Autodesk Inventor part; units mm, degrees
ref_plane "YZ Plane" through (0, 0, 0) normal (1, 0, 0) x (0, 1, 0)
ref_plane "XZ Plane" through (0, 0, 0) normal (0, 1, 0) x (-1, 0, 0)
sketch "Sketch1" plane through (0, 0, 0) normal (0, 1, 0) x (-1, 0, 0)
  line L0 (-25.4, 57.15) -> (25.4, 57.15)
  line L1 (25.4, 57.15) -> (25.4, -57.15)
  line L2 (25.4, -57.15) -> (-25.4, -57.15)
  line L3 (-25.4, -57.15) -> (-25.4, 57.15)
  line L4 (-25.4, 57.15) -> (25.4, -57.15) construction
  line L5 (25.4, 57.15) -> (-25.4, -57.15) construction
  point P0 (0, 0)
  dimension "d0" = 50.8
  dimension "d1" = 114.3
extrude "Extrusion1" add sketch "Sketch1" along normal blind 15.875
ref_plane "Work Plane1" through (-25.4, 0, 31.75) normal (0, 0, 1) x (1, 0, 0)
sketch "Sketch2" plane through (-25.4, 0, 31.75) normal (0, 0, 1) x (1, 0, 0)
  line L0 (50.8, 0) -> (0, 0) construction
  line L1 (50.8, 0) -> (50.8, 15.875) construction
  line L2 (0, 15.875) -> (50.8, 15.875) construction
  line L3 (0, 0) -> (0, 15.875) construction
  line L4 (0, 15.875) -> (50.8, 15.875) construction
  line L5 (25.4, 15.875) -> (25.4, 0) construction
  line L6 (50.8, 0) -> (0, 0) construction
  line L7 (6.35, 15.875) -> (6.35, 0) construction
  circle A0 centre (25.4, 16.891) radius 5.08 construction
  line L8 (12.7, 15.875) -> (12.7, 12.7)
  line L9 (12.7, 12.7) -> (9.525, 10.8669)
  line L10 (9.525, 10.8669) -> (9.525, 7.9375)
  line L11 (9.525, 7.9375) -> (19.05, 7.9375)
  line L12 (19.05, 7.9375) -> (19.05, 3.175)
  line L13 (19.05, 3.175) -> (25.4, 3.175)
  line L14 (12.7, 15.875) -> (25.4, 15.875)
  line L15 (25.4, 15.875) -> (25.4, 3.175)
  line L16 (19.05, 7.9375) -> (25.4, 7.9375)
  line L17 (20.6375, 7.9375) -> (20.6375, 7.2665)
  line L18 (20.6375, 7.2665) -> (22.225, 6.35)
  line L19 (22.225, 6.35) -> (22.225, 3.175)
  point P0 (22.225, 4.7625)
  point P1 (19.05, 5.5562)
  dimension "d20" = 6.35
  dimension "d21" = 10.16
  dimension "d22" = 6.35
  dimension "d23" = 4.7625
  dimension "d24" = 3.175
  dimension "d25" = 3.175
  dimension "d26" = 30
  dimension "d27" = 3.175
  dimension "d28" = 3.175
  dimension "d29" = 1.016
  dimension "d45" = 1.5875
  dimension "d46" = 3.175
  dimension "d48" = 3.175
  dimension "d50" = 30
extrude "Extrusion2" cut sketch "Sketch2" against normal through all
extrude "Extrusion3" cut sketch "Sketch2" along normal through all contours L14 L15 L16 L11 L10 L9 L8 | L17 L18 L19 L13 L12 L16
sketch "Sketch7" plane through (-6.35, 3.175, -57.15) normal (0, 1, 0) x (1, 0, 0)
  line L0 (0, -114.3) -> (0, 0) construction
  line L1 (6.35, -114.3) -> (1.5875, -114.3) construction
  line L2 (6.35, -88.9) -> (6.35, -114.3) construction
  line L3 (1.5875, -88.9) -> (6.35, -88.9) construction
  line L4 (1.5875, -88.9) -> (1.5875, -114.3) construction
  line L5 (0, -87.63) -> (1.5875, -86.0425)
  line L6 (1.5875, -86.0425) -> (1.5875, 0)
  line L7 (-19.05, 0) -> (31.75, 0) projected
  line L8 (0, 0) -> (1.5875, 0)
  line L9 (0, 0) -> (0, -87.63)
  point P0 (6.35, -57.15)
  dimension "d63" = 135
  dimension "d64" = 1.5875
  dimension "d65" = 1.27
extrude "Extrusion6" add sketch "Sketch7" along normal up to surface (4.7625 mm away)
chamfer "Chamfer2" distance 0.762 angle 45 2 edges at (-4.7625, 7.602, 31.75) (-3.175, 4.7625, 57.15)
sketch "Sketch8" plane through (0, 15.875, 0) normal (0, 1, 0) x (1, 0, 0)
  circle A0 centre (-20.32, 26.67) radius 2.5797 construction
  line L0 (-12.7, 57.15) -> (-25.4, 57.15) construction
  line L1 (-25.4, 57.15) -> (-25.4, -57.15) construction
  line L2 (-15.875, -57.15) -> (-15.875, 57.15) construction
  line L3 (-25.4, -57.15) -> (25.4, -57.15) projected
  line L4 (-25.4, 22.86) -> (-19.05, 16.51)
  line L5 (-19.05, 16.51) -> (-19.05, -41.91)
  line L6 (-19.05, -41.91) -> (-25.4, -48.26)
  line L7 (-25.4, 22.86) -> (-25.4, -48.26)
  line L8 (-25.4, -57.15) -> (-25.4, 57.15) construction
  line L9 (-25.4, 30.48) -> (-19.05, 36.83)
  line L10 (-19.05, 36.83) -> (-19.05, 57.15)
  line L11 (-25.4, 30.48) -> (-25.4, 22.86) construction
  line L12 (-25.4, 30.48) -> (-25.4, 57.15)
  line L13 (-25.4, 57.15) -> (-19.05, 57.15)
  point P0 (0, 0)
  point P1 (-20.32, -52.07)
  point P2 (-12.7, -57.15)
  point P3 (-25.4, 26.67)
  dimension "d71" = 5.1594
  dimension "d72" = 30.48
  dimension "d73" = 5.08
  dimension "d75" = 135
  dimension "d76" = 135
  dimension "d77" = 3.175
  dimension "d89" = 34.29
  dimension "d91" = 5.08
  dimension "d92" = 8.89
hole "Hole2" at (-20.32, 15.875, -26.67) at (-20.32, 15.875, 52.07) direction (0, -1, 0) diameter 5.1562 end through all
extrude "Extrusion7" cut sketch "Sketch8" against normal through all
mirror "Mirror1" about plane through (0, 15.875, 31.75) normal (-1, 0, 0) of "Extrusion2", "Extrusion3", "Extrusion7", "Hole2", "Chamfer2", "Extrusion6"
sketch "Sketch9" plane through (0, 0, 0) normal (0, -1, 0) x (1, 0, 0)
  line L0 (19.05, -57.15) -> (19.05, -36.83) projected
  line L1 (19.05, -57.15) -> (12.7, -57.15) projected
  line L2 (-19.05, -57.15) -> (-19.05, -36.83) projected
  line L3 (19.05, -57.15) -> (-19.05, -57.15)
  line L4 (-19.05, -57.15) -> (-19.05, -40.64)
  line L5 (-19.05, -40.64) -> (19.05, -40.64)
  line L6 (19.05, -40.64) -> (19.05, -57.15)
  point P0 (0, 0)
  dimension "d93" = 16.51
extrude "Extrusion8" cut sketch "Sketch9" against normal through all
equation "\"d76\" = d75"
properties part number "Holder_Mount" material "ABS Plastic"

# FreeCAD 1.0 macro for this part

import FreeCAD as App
import Part
import Sketcher
Q = App.Units.Quantity


def edges_at(feature, points):
    """Names of the edges that pass closest to the given points."""
    edges = feature.Shape.Edges
    near = lambda p: min(range(len(edges)), key=lambda i: edges[i].distToShape(Part.Vertex(*p))[0])
    return sorted({f"Edge{near(p) + 1}" for p in points})

doc = App.newDocument("Part")
body = doc.addObject("PartDesign::Body", "Body")

# Sketch on XZ plane
sketch1 = body.newObject("Sketcher::SketchObject", "Sketch")
sketch1.AttachmentSupport = (doc.getObject("XZ_Plane"), [""])
sketch1.MapMode = "FlatFace"
sketch1.addGeometry([
    Part.LineSegment(App.Vector(-25.4, 57.15, 0), App.Vector(25.4, 57.15, 0)),
    Part.LineSegment(App.Vector(25.4, 57.15, 0), App.Vector(25.4, -57.15, 0)),
    Part.LineSegment(App.Vector(25.4, -57.15, 0), App.Vector(-25.4, -57.15, 0)),
    Part.LineSegment(App.Vector(-25.4, -57.15, 0), App.Vector(-25.4, 57.15, 0)),
], False)
sketch1.addConstraint([
    Sketcher.Constraint("Coincident", 0, 2, 1, 1),
    Sketcher.Constraint("Coincident", 1, 2, 2, 1),
    Sketcher.Constraint("Coincident", 2, 2, 3, 1),
    Sketcher.Constraint("Coincident", 3, 2, 0, 1),
    Sketcher.Constraint("Horizontal", 0),
    Sketcher.Constraint("Vertical", 1),
    Sketcher.Constraint("Horizontal", 2),
    Sketcher.Constraint("Vertical", 3),
    Sketcher.Constraint("Symmetric", 0, 2, 2, 2, -1, 1),
    Sketcher.Constraint("DistanceX", 0, 1, 0, 2, Q("2 in")),
    Sketcher.Constraint("DistanceY", 1, 2, 1, 1, Q("4.5 in")),
])
pad1 = body.newObject("PartDesign::Pad", "Pad")
pad1.Profile = sketch1
pad1.Length = Q("0.625 in")
pad1.Reversed = True

# Sketch on XY plane
sketch2 = body.newObject("Sketcher::SketchObject", "Sketch001")
sketch2.AttachmentSupport = (doc.getObject("XY_Plane"), [""])
sketch2.MapMode = "FlatFace"
sketch2.AttachmentOffset = App.Placement(App.Vector(0, 0, 1.25 * 25.4), App.Rotation())
sketch2.addGeometry([
    Part.LineSegment(App.Vector(0, 15.875, 0), App.Vector(-12.7, 15.875, 0)),  # 0
    Part.LineSegment(App.Vector(-12.7, 15.875, 0), App.Vector(-12.7, 12.7, 0)),  # 1
    Part.LineSegment(App.Vector(-12.7, 12.7, 0), App.Vector(-15.875, 10.8669, 0)),  # 2
    Part.LineSegment(App.Vector(-15.875, 10.8669, 0), App.Vector(-15.875, 7.9375, 0)),  # 3
    Part.LineSegment(App.Vector(-15.875, 7.9375, 0), App.Vector(-6.35, 7.9375, 0)),  # 4
    Part.LineSegment(App.Vector(-6.35, 7.9375, 0), App.Vector(-6.35, 3.175, 0)),  # 5
    Part.LineSegment(App.Vector(-6.35, 3.175, 0), App.Vector(0, 3.175, 0)),  # 6
    Part.LineSegment(App.Vector(0, 3.175, 0), App.Vector(0, 15.875, 0)),  # 7
], False)
sketch2.addConstraint([
    Sketcher.Constraint("Coincident", 0, 2, 1, 1),
    Sketcher.Constraint("Coincident", 1, 2, 2, 1),
    Sketcher.Constraint("Coincident", 2, 2, 3, 1),
    Sketcher.Constraint("Coincident", 3, 2, 4, 1),
    Sketcher.Constraint("Coincident", 4, 2, 5, 1),
    Sketcher.Constraint("Coincident", 5, 2, 6, 1),
    Sketcher.Constraint("Coincident", 6, 2, 7, 1),
    Sketcher.Constraint("Coincident", 7, 2, 0, 1),
    Sketcher.Constraint("Horizontal", 0),
    Sketcher.Constraint("Vertical", 1),
    Sketcher.Constraint("Vertical", 3),
    Sketcher.Constraint("Horizontal", 4),
    Sketcher.Constraint("Vertical", 5),
    Sketcher.Constraint("Horizontal", 6),
    Sketcher.Constraint("Vertical", 7),
    Sketcher.Constraint("PointOnObject", 6, 2, -2),
    Sketcher.Constraint("Equal", 0, 7),
    Sketcher.Constraint("DistanceX", 6, 1, 6, 2, Q("0.25 in")),
    Sketcher.Constraint("DistanceY", 1, 2, 1, 1, Q("0.125 in")),
    Sketcher.Constraint("DistanceY", 5, 2, 5, 1, Q("0.1875 in")),
    Sketcher.Constraint("DistanceX", 1, 2, 4, 2, Q("0.25 in")),
    Sketcher.Constraint("DistanceY", -1, 1, 5, 2, Q("0.125 in")),
    Sketcher.Constraint("Angle", 2, Q("-149.9998 deg")),
    Sketcher.Constraint("DistanceX", 2, 2, 1, 2, Q("0.125 in")),
])
pocket1 = body.newObject("PartDesign::Pocket", "Pocket")
pocket1.Profile = sketch2
pocket1.Type = "ThroughAll"

# Sketch on XY plane
sketch3 = body.newObject("Sketcher::SketchObject", "Sketch002")
sketch3.AttachmentSupport = (doc.getObject("XY_Plane"), [""])
sketch3.MapMode = "FlatFace"
sketch3.AttachmentOffset = App.Placement(App.Vector(0, 0, 1.25 * 25.4), App.Rotation())
sketch3.addGeometry([
    Part.LineSegment(App.Vector(0, 15.875, 0), App.Vector(-12.7, 15.875, 0)),  # 0
    Part.LineSegment(App.Vector(-12.7, 15.875, 0), App.Vector(-12.7, 12.7, 0)),  # 1
    Part.LineSegment(App.Vector(-12.7, 12.7, 0), App.Vector(-15.875, 10.8669, 0)),  # 2
    Part.LineSegment(App.Vector(-15.875, 10.8669, 0), App.Vector(-15.875, 7.9375, 0)),  # 3
    Part.LineSegment(App.Vector(-15.875, 7.9375, 0), App.Vector(-6.35, 7.9375, 0)),  # 4
    Part.LineSegment(App.Vector(-6.35, 7.9375, 0), App.Vector(-6.35, 3.175, 0)),  # 5
    Part.LineSegment(App.Vector(-6.35, 3.175, 0), App.Vector(-3.175, 3.175, 0)),  # 6
    Part.LineSegment(App.Vector(-3.175, 3.175, 0), App.Vector(-3.175, 6.35, 0)),  # 7
    Part.LineSegment(App.Vector(-3.175, 6.35, 0), App.Vector(-4.7625, 7.2665, 0)),  # 8
    Part.LineSegment(App.Vector(-4.7625, 7.2665, 0), App.Vector(-4.7625, 7.9375, 0)),  # 9
    Part.LineSegment(App.Vector(-4.7625, 7.9375, 0), App.Vector(0, 7.9375, 0)),  # 10
    Part.LineSegment(App.Vector(0, 7.9375, 0), App.Vector(0, 15.875, 0)),  # 11
], False)
sketch3.addConstraint([
    Sketcher.Constraint("Coincident", 0, 2, 1, 1),
    Sketcher.Constraint("Coincident", 1, 2, 2, 1),
    Sketcher.Constraint("Coincident", 2, 2, 3, 1),
    Sketcher.Constraint("Coincident", 3, 2, 4, 1),
    Sketcher.Constraint("Coincident", 4, 2, 5, 1),
    Sketcher.Constraint("Coincident", 5, 2, 6, 1),
    Sketcher.Constraint("Coincident", 6, 2, 7, 1),
    Sketcher.Constraint("Coincident", 7, 2, 8, 1),
    Sketcher.Constraint("Coincident", 8, 2, 9, 1),
    Sketcher.Constraint("Coincident", 9, 2, 10, 1),
    Sketcher.Constraint("Coincident", 10, 2, 11, 1),
    Sketcher.Constraint("Coincident", 11, 2, 0, 1),
    Sketcher.Constraint("Horizontal", 0),
    Sketcher.Constraint("Vertical", 1),
    Sketcher.Constraint("Vertical", 3),
    Sketcher.Constraint("Horizontal", 4),
    Sketcher.Constraint("Vertical", 5),
    Sketcher.Constraint("Horizontal", 6),
    Sketcher.Constraint("Vertical", 7),
    Sketcher.Constraint("Vertical", 9),
    Sketcher.Constraint("Horizontal", 10),
    Sketcher.Constraint("Vertical", 11),
    Sketcher.Constraint("PointOnObject", 10, 2, -2),
    Sketcher.Constraint("Horizontal", 4, 2, 9, 2),
    Sketcher.Constraint("Equal", 6, 1),
    Sketcher.Constraint("Equal", 10, 5),
    Sketcher.Constraint("Equal", 1, 7),
    Sketcher.Constraint("DistanceX", 6, 1, 6, 2, Q("0.125 in")),
    Sketcher.Constraint("DistanceX", 10, 1, 10, 2, Q("0.1875 in")),
    Sketcher.Constraint("DistanceX", 4, 2, -1, 1, Q("0.25 in")),
    Sketcher.Constraint("DistanceY", -1, 1, 7, 2, Q("0.25 in")),
    Sketcher.Constraint("DistanceX", 1, 2, 4, 2, Q("0.25 in")),
    Sketcher.Constraint("DistanceY", 7, 2, 1, 2, Q("0.25 in")),
    Sketcher.Constraint("Angle", 2, Q("-149.9998 deg")),
    Sketcher.Constraint("Angle", 8, Q("150.0012 deg")),
    Sketcher.Constraint("DistanceX", 2, 2, 1, 2, Q("0.125 in")),
])
pocket2 = body.newObject("PartDesign::Pocket", "Pocket001")
pocket2.Profile = sketch3
pocket2.Type = "ThroughAll"
pocket2.Reversed = True

# Sketch on XZ plane
sketch4 = body.newObject("Sketcher::SketchObject", "Sketch003")
sketch4.AttachmentSupport = (doc.getObject("XZ_Plane"), [""])
sketch4.MapMode = "FlatFace"
sketch4.AttachmentOffset = App.Placement(App.Vector(0, 0, -0.125 * 25.4), App.Rotation())
sketch4.addGeometry([
    Part.LineSegment(App.Vector(-6.35, -57.15, 0), App.Vector(-6.35, 30.48, 0)),
    Part.LineSegment(App.Vector(-6.35, 30.48, 0), App.Vector(-4.7625, 28.8925, 0)),
    Part.LineSegment(App.Vector(-4.7625, 28.8925, 0), App.Vector(-4.7625, -57.15, 0)),
    Part.LineSegment(App.Vector(-4.7625, -57.15, 0), App.Vector(-6.35, -57.15, 0)),
], False)
sketch4.addConstraint([
    Sketcher.Constraint("Coincident", 0, 2, 1, 1),
    Sketcher.Constraint("Coincident", 1, 2, 2, 1),
    Sketcher.Constraint("Coincident", 2, 2, 3, 1),
    Sketcher.Constraint("Coincident", 3, 2, 0, 1),
    Sketcher.Constraint("Vertical", 0),
    Sketcher.Constraint("Vertical", 2),
    Sketcher.Constraint("Horizontal", 3),
    Sketcher.Constraint("DistanceX", 3, 2, 3, 1, Q("0.0625 in")),
    Sketcher.Constraint("Angle", 1, Q("-45 deg")),
    Sketcher.Constraint("DistanceY", 0, 1, 0, 2, Q("3.45 in")),
    Sketcher.Constraint("DistanceY", -1, 1, 0, 2, Q("1.2 in")),
    Sketcher.Constraint("DistanceX", 0, 2, -1, 1, Q("0.25 in")),
])
pad2 = body.newObject("PartDesign::Pad", "Pad001")
pad2.Profile = sketch4
pad2.Length = Q("0.1875 in")
pad2.Reversed = True
doc.recompute()

chamfer = body.newObject("PartDesign::Chamfer", "Chamfer")
chamfer.Base = (pad2, edges_at(pad2, [(-4.763, 7.602, 31.75), (-3.175, 4.763, 57.15)]))
chamfer.Size = Q("0.03 in")

# Sketch on XZ plane
sketch5 = body.newObject("Sketcher::SketchObject", "Sketch004")
sketch5.AttachmentSupport = (doc.getObject("XZ_Plane"), [""])
sketch5.MapMode = "FlatFace"
sketch5.AttachmentOffset = App.Placement(App.Vector(0, 0, -0.625 * 25.4), App.Rotation())
sketch5.addGeometry([
    Part.Circle(App.Vector(-20.32, -26.67, 0), App.Vector(0, 0, 1), 2.5781),
    Part.Circle(App.Vector(-20.32, 52.07, 0), App.Vector(0, 0, 1), 2.5781),
], False)
sketch5.addConstraint([
    Sketcher.Constraint("Equal", 0, 1),
    Sketcher.Constraint("Vertical", 0, 3, 1, 3),
    Sketcher.Constraint("Diameter", 0, Q("0.203 in")),
    Sketcher.Constraint("DistanceX", 0, 3, -1, 1, Q("0.8 in")),
    Sketcher.Constraint("DistanceY", 0, 3, 1, 3, Q("3.1 in")),
    Sketcher.Constraint("DistanceY", 0, 3, -1, 1, Q("1.05 in")),
])
doc.recompute()
hole = body.newObject("PartDesign::Hole", "Hole")
hole.Profile = sketch5
hole.ThreadType = "None"
hole.Diameter = Q("0.203 in")
hole.DepthType = "ThroughAll"
hole.Reversed = True

# Sketch on XZ plane
sketch6 = body.newObject("Sketcher::SketchObject", "Sketch005")
sketch6.AttachmentSupport = (doc.getObject("XZ_Plane"), [""])
sketch6.MapMode = "FlatFace"
sketch6.AttachmentOffset = App.Placement(App.Vector(0, 0, -0.625 * 25.4), App.Rotation())
sketch6.addGeometry([
    Part.LineSegment(App.Vector(-19.05, -16.51, 0), App.Vector(-25.4, -22.86, 0)),  # 0
    Part.LineSegment(App.Vector(-25.4, -22.86, 0), App.Vector(-25.4, 48.26, 0)),  # 1
    Part.LineSegment(App.Vector(-25.4, 48.26, 0), App.Vector(-19.05, 41.91, 0)),  # 2
    Part.LineSegment(App.Vector(-19.05, 41.91, 0), App.Vector(-19.05, -16.51, 0)),  # 3
    Part.LineSegment(App.Vector(-25.4, -57.15, 0), App.Vector(-25.4, -30.48, 0)),  # 4
    Part.LineSegment(App.Vector(-25.4, -30.48, 0), App.Vector(-19.05, -36.83, 0)),  # 5
    Part.LineSegment(App.Vector(-19.05, -36.83, 0), App.Vector(-19.05, -57.15, 0)),  # 6
    Part.LineSegment(App.Vector(-19.05, -57.15, 0), App.Vector(-25.4, -57.15, 0)),  # 7
], False)
sketch6.addConstraint([
    Sketcher.Constraint("Coincident", 0, 2, 1, 1),
    Sketcher.Constraint("Coincident", 1, 2, 2, 1),
    Sketcher.Constraint("Coincident", 2, 2, 3, 1),
    Sketcher.Constraint("Coincident", 3, 2, 0, 1),
    Sketcher.Constraint("Coincident", 4, 2, 5, 1),
    Sketcher.Constraint("Coincident", 5, 2, 6, 1),
    Sketcher.Constraint("Coincident", 6, 2, 7, 1),
    Sketcher.Constraint("Coincident", 7, 2, 4, 1),
    Sketcher.Constraint("Vertical", 1),
    Sketcher.Constraint("Vertical", 3),
    Sketcher.Constraint("Vertical", 4),
    Sketcher.Constraint("Vertical", 6),
    Sketcher.Constraint("Horizontal", 7),
    Sketcher.Constraint("Perpendicular", 0, 2),
    Sketcher.Constraint("Parallel", 2, 5),
    Sketcher.Constraint("Vertical", 1, 2, 4, 2),
    Sketcher.Constraint("Vertical", 3, 2, 5, 2),
    Sketcher.Constraint("Equal", 0, 2),
    Sketcher.Constraint("DistanceY", 4, 2, -1, 1, Q("1.2 in")),
    Sketcher.Constraint("DistanceY", 6, 2, 0, 2, Q("1.35 in")),
    Sketcher.Constraint("DistanceY", 1, 1, 1, 2, Q("2.8 in")),
    Sketcher.Constraint("DistanceY", 3, 2, 3, 1, Q("2.3 in")),
    Sketcher.Constraint("DistanceY", 6, 2, 6, 1, Q("0.8 in")),
    Sketcher.Constraint("DistanceX", 0, 2, -1, 1, Q("1 in")),
])
pocket3 = body.newObject("PartDesign::Pocket", "Pocket002")
pocket3.Profile = sketch6
pocket3.Type = "ThroughAll"
pocket3.Reversed = True
doc.recompute()

mirrored = body.newObject("PartDesign::Mirrored", "Mirrored")
mirrored.Originals = [pocket1, pocket2, pocket3, hole, chamfer, pad2]
mirrored.MirrorPlane = (doc.getObject("YZ_Plane"), [""])
body.Tip = mirrored

# Sketch on XZ plane
sketch7 = body.newObject("Sketcher::SketchObject", "Sketch006")
sketch7.AttachmentSupport = (doc.getObject("XZ_Plane"), [""])
sketch7.MapMode = "FlatFace"
sketch7.addGeometry([
    Part.LineSegment(App.Vector(-19.05, -57.15, 0), App.Vector(19.05, -57.15, 0)),
    Part.LineSegment(App.Vector(19.05, -57.15, 0), App.Vector(19.05, -40.64, 0)),
    Part.LineSegment(App.Vector(19.05, -40.64, 0), App.Vector(-19.05, -40.64, 0)),
    Part.LineSegment(App.Vector(-19.05, -40.64, 0), App.Vector(-19.05, -57.15, 0)),
], False)
sketch7.addConstraint([
    Sketcher.Constraint("Coincident", 0, 2, 1, 1),
    Sketcher.Constraint("Coincident", 1, 2, 2, 1),
    Sketcher.Constraint("Coincident", 2, 2, 3, 1),
    Sketcher.Constraint("Coincident", 3, 2, 0, 1),
    Sketcher.Constraint("Horizontal", 0),
    Sketcher.Constraint("Vertical", 1),
    Sketcher.Constraint("Horizontal", 2),
    Sketcher.Constraint("Vertical", 3),
    Sketcher.Constraint("DistanceY", 1, 1, 1, 2, Q("0.65 in")),
    Sketcher.Constraint("DistanceX", 0, 1, 0, 2, Q("1.5 in")),
    Sketcher.Constraint("DistanceY", 1, 2, -1, 1, Q("1.6 in")),
    Sketcher.Constraint("DistanceX", -1, 1, 0, 2, Q("0.75 in")),
])
pocket4 = body.newObject("PartDesign::Pocket", "Pocket003")
pocket4.Profile = sketch7
pocket4.Type = "ThroughAll"

doc.recompute()
